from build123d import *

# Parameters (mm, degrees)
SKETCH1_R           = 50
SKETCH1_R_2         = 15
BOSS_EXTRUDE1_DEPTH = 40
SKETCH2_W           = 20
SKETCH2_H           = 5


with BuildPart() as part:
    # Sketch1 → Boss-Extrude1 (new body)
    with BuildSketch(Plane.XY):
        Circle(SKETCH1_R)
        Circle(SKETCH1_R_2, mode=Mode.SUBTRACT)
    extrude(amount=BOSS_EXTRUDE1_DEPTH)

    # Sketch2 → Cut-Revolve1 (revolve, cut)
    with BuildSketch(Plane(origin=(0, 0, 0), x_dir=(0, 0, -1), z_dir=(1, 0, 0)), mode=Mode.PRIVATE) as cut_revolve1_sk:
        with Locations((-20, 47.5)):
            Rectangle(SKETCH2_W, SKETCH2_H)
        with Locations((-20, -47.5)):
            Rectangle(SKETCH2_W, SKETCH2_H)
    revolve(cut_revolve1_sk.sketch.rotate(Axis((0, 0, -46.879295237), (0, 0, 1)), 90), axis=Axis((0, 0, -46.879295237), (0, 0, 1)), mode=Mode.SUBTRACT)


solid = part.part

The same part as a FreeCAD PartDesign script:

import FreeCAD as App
import Part
import Sketcher

V = App.Vector
Q = App.Units.Quantity


def add_polygon(sketch, points):
    """Adds a closed chain of lines whose ends are joined by coincident constraints."""
    first, n = sketch.GeometryCount, len(points)
    for a, b in zip(points, points[1:] + points[:1]):
        sketch.addGeometry(Part.LineSegment(App.Vector(*a, 0), App.Vector(*b, 0)), False)
    for i in range(n):
        sketch.addConstraint(Sketcher.Constraint("Coincident", first + i, 2, first + (i + 1) % n, 1))

doc = App.newDocument("Part")
body = doc.addObject("PartDesign::Body", "Body")

# Sketch on XY plane
sketch1 = body.newObject("Sketcher::SketchObject", "Sketch")
sketch1.AttachmentSupport = (doc.getObject("XY_Plane"), [""])
sketch1.MapMode = "FlatFace"
sketch1.addGeometry(Part.Circle(V(0, 0, 0), V(0, 0, 1), 50), False)
sketch1.addGeometry(Part.Circle(V(0, 0, 0), V(0, 0, 1), 15), False)
sketch1.addConstraint(Sketcher.Constraint("Coincident", 0, 3, -1, 1))
sketch1.addConstraint(Sketcher.Constraint("Coincident", 1, 3, -1, 1))
sketch1.addConstraint(Sketcher.Constraint("Diameter", 0, Q("100 mm")))
sketch1.addConstraint(Sketcher.Constraint("Diameter", 1, Q("30 mm")))
pad1 = body.newObject("PartDesign::Pad", "Pad")
pad1.Profile = sketch1
pad1.Length = 40

# Sketch on YZ plane
sketch2 = body.newObject("Sketcher::SketchObject", "Sketch001")
sketch2.AttachmentSupport = (doc.getObject("YZ_Plane"), [""])
sketch2.MapMode = "FlatFace"
add_polygon(sketch2, [(50, 30), (45, 30), (45, 10), (50, 10)])  # lines 0-3
add_polygon(sketch2, [(-45, 30), (-50, 30), (-50, 10), (-45, 10)])  # lines 4-7
sketch2.addConstraint(Sketcher.Constraint("Horizontal", 0))
sketch2.addConstraint(Sketcher.Constraint("Vertical", 1))
sketch2.addConstraint(Sketcher.Constraint("Horizontal", 2))
sketch2.addConstraint(Sketcher.Constraint("Vertical", 3))
sketch2.addConstraint(Sketcher.Constraint("Horizontal", 4))
sketch2.addConstraint(Sketcher.Constraint("Vertical", 5))
sketch2.addConstraint(Sketcher.Constraint("Horizontal", 6))
sketch2.addConstraint(Sketcher.Constraint("Vertical", 7))
sketch2.addConstraint(Sketcher.Constraint("Symmetric", 3, 2, 4, 2, -2))
sketch2.addConstraint(Sketcher.Constraint("Symmetric", 1, 2, 6, 2, -2))
sketch2.addConstraint(Sketcher.Constraint("DistanceX", 0, 2, 0, 1, Q("5 mm")))
sketch2.addConstraint(Sketcher.Constraint("DistanceY", 1, 2, 1, 1, Q("20 mm")))
sketch2.addConstraint(Sketcher.Constraint("DistanceX", -1, 1, 0, 2, Q("45 mm")))
sketch2.addConstraint(Sketcher.Constraint("DistanceY", -1, 1, 0, 2, Q("30 mm")))
groove = body.newObject("PartDesign::Groove", "Groove")
groove.Profile = sketch2
groove.ReferenceAxis = (sketch2, ["V_Axis"])
groove.Angle = 360

doc.recompute()
